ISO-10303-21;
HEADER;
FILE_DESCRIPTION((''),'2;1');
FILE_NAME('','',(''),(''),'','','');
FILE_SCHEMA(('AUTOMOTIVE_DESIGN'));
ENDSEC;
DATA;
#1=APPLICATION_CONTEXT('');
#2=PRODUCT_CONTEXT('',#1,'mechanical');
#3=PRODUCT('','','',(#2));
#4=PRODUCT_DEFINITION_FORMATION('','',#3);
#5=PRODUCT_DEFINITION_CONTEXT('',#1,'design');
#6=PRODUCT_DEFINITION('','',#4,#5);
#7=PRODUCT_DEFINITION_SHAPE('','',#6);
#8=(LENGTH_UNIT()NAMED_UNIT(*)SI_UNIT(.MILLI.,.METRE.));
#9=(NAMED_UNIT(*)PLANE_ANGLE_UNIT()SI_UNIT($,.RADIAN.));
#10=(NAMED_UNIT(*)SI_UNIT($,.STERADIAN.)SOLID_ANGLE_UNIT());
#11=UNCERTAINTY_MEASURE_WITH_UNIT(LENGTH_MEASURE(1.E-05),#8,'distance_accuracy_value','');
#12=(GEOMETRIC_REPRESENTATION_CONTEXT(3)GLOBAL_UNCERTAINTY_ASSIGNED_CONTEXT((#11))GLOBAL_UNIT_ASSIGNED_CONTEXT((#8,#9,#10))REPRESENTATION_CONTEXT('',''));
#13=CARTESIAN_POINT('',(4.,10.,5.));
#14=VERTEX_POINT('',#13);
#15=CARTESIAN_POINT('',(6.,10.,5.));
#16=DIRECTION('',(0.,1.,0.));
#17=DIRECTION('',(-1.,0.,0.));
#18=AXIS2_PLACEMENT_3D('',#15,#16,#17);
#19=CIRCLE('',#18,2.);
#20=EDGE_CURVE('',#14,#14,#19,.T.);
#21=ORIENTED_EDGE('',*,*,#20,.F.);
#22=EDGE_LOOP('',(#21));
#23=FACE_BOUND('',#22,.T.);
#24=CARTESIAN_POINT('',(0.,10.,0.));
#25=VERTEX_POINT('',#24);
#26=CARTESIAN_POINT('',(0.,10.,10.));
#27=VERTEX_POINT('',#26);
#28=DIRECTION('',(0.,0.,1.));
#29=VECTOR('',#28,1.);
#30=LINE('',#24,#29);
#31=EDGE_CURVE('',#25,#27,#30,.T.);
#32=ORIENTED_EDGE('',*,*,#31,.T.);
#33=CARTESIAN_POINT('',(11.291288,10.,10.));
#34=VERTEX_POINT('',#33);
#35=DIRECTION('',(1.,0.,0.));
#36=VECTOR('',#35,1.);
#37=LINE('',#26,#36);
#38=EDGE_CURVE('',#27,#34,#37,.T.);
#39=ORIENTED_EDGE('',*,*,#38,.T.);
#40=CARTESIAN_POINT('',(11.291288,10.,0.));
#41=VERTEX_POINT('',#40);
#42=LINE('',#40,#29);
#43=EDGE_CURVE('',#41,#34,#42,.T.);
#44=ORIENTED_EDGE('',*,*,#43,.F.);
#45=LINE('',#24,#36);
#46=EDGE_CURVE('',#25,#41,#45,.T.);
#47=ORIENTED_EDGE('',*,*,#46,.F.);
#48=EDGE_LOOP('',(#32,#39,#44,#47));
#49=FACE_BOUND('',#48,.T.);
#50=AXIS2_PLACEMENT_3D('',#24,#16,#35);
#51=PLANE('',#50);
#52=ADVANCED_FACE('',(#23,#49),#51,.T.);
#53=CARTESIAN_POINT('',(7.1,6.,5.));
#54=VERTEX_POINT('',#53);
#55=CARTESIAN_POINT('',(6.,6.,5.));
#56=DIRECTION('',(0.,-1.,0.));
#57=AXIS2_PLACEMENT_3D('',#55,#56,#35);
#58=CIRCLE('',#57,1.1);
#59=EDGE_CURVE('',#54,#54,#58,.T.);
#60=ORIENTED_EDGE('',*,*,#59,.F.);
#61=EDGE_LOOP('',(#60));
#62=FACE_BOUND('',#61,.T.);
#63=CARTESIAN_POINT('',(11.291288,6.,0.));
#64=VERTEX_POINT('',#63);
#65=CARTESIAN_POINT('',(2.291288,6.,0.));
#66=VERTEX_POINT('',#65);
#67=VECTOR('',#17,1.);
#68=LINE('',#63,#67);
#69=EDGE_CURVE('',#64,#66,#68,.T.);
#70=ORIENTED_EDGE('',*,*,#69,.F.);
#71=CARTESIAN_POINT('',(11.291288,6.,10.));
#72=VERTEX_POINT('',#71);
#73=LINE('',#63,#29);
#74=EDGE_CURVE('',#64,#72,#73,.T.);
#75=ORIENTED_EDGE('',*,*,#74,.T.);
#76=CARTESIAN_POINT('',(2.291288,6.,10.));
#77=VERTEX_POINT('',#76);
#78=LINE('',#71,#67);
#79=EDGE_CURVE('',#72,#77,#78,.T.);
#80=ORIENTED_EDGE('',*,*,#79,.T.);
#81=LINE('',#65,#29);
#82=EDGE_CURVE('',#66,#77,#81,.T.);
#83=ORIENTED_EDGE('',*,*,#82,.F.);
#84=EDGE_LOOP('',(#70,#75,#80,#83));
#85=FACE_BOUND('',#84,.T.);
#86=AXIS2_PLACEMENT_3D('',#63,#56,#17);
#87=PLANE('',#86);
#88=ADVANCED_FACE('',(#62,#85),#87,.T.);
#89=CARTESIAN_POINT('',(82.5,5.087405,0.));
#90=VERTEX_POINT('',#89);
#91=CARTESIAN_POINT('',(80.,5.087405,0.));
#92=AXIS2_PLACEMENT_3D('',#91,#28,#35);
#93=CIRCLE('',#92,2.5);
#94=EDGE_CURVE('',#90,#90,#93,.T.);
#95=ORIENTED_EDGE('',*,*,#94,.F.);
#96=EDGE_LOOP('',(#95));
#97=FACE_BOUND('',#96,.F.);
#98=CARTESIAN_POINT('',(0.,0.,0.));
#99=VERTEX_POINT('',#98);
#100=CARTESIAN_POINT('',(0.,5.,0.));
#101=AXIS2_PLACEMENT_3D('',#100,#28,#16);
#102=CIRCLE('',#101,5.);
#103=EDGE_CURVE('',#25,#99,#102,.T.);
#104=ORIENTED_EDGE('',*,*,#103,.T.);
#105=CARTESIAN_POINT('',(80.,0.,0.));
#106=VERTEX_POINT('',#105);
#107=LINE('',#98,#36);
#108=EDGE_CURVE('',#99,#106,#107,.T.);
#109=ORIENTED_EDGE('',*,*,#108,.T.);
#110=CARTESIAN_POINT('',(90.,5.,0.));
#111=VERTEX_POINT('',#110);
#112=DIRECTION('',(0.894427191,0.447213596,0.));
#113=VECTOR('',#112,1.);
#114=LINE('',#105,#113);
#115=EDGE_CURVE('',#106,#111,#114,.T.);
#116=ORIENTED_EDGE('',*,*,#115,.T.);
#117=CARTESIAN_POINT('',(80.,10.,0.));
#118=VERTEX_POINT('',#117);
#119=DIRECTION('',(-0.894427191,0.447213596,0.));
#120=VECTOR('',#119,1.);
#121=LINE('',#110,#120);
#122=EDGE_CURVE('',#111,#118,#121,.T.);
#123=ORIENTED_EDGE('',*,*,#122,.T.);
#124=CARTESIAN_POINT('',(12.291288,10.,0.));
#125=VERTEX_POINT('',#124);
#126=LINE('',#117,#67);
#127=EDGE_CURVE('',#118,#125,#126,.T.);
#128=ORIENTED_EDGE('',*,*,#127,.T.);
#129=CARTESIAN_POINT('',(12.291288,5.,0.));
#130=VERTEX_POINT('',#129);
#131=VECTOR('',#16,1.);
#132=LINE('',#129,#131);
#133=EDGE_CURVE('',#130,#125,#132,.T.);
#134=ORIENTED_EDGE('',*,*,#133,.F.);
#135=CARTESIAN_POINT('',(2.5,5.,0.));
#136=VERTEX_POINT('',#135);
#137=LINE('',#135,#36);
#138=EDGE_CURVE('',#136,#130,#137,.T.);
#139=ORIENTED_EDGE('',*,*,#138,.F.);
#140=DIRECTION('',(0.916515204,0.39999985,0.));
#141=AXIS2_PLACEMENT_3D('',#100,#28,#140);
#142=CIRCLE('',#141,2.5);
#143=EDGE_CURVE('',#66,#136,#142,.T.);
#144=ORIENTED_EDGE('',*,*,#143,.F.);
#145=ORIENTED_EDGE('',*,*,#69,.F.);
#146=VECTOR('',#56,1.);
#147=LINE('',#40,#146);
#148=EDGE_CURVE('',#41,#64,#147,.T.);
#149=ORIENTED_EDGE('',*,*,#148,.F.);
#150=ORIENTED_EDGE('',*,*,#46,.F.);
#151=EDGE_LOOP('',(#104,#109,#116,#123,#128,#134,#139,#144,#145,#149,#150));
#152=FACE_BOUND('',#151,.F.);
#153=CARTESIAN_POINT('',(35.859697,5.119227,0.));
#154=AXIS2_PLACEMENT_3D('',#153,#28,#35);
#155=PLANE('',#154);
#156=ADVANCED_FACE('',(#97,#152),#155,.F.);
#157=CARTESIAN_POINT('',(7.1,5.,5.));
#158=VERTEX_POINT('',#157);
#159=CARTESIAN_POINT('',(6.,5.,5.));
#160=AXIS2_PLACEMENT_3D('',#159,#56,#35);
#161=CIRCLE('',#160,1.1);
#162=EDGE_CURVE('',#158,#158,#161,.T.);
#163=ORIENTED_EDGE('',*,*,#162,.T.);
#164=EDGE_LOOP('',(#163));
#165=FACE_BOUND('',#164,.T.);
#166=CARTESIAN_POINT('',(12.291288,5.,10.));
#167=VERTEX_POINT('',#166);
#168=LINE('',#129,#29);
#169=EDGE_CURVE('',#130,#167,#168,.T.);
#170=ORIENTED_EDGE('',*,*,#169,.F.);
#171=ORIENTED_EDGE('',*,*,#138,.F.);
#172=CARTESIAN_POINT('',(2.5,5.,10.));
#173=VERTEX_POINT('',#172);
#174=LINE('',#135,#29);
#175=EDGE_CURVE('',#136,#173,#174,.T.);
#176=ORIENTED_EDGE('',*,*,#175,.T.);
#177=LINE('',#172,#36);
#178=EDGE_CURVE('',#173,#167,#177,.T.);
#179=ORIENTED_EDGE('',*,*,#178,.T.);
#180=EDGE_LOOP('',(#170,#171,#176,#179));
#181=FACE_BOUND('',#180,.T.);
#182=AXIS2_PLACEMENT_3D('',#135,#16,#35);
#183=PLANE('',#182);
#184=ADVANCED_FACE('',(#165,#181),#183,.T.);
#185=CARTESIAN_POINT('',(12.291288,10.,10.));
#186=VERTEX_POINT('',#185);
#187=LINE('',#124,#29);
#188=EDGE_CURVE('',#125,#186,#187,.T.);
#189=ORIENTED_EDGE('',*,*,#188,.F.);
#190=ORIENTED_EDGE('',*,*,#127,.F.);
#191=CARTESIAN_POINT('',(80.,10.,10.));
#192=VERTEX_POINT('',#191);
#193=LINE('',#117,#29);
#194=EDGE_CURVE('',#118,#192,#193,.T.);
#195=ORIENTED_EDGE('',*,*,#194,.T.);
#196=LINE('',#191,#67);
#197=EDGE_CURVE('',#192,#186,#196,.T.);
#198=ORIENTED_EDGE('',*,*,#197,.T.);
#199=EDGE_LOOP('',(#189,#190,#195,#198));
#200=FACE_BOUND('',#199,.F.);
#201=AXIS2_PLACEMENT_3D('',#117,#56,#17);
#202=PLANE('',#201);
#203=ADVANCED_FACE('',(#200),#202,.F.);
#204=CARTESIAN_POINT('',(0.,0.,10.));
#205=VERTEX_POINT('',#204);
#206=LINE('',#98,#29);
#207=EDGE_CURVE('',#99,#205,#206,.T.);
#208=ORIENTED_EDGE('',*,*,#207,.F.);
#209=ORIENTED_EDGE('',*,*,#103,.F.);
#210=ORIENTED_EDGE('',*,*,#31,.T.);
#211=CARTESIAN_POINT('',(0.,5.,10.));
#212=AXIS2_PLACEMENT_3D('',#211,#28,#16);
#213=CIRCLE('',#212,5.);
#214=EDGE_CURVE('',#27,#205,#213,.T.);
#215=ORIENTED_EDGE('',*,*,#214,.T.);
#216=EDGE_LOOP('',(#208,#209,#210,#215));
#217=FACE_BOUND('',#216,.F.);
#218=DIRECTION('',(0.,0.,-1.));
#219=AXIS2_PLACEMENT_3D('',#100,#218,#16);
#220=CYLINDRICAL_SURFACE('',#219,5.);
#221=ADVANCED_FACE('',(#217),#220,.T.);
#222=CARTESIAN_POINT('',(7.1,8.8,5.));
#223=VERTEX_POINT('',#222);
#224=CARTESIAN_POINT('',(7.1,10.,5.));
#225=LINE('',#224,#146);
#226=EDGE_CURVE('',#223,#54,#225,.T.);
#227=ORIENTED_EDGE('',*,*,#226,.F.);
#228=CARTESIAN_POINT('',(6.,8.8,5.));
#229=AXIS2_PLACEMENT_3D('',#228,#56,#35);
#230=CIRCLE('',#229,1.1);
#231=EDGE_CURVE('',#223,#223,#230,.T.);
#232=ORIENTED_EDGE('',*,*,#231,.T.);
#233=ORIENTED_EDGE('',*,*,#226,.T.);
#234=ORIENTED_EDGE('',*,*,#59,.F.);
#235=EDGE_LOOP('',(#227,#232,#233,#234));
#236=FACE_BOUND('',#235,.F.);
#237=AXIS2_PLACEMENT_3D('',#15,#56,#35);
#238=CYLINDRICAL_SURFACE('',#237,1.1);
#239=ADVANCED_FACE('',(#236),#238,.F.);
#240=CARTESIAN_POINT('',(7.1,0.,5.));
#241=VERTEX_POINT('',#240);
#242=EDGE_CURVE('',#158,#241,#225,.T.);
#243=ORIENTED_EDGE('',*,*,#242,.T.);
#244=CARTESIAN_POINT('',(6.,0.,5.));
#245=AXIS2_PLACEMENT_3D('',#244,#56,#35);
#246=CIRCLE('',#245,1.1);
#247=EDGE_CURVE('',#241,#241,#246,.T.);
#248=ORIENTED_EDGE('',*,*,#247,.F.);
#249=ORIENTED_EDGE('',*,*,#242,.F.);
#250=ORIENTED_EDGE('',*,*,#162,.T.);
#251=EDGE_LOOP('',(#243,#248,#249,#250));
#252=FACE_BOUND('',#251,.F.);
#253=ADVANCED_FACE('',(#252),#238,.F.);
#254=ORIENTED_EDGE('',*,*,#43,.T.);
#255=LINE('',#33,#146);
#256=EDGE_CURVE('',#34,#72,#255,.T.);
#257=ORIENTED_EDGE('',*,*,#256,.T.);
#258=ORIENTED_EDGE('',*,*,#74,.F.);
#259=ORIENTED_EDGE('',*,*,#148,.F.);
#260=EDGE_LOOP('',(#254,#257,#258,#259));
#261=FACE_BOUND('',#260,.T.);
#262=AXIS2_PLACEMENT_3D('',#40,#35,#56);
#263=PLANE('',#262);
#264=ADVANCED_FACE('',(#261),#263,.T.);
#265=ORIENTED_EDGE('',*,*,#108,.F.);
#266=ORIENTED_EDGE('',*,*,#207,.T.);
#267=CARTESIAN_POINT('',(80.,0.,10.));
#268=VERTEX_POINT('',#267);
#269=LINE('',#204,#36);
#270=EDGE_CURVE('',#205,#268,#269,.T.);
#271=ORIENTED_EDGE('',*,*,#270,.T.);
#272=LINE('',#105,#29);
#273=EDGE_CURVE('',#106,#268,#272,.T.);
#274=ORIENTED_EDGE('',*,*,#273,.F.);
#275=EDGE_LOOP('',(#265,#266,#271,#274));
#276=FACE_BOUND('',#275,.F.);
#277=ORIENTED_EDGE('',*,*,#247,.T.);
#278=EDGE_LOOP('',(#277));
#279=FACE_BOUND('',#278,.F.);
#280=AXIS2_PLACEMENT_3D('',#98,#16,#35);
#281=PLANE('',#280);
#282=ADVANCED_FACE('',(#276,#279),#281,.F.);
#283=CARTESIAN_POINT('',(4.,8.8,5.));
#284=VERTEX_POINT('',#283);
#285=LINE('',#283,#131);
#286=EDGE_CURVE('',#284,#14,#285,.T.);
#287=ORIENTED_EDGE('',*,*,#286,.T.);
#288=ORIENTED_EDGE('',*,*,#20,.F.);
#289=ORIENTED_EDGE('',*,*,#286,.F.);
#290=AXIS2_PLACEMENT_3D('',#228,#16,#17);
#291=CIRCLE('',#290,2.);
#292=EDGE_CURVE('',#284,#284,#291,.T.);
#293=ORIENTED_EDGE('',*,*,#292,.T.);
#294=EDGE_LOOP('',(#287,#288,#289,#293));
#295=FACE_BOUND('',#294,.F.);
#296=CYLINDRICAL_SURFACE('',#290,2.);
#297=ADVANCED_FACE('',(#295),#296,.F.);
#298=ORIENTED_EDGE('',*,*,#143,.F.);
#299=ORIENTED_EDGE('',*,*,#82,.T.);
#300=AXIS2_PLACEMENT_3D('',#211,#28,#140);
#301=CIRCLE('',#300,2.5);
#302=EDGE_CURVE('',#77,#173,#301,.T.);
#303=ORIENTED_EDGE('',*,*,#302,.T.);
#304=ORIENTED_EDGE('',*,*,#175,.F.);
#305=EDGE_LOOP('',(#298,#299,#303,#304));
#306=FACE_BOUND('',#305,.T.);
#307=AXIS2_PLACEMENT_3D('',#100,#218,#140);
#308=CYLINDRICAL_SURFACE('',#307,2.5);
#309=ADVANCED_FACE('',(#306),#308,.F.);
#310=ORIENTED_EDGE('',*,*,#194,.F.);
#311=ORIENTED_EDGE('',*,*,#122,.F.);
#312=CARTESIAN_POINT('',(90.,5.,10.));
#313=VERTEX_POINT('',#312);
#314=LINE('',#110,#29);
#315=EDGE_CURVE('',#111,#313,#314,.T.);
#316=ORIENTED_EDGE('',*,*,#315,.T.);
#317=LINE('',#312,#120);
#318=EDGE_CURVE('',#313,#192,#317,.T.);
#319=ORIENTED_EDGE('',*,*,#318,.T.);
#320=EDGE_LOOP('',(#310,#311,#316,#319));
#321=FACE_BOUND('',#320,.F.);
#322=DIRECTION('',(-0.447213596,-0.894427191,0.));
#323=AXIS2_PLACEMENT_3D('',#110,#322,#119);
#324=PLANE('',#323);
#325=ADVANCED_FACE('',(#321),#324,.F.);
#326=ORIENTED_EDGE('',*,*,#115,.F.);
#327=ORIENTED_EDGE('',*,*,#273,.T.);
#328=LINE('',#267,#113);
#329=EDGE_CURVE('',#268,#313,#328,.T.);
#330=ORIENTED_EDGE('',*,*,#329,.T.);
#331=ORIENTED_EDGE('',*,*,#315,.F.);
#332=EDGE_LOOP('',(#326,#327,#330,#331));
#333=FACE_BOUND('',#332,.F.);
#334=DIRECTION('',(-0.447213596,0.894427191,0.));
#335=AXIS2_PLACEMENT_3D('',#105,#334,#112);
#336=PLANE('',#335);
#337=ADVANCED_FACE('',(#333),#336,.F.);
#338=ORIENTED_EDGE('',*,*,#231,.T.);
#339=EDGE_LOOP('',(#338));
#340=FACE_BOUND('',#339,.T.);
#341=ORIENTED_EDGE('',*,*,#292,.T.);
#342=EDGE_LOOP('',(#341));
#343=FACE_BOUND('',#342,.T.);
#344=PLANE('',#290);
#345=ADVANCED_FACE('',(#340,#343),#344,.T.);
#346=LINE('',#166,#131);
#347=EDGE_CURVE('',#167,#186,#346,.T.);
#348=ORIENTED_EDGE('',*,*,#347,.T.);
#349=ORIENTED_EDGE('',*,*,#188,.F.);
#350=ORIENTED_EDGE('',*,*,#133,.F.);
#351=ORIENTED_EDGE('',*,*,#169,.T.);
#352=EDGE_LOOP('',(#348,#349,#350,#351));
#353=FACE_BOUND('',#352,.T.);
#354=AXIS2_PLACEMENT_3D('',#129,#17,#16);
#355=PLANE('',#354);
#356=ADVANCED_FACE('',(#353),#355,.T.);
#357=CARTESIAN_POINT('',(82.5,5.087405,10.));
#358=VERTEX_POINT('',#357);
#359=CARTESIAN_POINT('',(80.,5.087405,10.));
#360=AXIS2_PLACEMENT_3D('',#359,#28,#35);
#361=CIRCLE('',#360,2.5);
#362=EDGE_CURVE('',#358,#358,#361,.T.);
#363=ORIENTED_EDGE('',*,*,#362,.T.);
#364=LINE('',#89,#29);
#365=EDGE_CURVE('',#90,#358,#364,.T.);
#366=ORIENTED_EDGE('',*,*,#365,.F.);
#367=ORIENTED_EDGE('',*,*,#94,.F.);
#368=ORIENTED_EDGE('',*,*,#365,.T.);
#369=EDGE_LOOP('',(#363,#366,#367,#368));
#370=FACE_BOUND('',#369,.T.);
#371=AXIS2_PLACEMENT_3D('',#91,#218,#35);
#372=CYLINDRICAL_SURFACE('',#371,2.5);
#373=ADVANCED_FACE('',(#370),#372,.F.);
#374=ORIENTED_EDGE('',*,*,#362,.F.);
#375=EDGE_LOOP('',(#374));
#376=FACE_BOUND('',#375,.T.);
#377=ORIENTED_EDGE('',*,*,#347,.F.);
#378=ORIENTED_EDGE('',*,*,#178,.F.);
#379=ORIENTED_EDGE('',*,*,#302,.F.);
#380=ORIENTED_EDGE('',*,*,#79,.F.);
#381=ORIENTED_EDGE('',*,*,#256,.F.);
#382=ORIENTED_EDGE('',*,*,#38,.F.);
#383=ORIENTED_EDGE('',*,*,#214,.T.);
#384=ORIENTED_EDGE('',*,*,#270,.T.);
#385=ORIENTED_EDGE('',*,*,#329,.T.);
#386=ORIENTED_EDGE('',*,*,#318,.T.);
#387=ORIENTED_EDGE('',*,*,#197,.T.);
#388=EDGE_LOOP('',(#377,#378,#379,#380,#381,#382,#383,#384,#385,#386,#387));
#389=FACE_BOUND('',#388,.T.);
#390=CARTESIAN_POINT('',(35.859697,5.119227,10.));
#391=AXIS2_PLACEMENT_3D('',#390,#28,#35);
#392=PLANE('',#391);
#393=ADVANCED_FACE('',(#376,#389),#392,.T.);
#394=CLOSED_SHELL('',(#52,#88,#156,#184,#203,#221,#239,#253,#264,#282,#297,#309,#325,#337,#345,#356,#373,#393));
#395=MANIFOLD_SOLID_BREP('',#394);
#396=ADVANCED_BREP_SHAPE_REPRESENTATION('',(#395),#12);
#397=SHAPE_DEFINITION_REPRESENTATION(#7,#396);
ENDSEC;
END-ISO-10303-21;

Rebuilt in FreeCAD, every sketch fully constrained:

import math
import FreeCAD as App
import Part
import Sketcher
Q = App.Units.Quantity

doc = App.newDocument("Part")
body = doc.addObject("PartDesign::Body", "Body")

# Sketch on XY plane
sketch1 = body.newObject("Sketcher::SketchObject", "Sketch")
sketch1.AttachmentSupport = (doc.getObject("XY_Plane"), [""])
sketch1.MapMode = "FlatFace"
sketch1.addGeometry(Part.LineSegment(App.Vector(0, 0, 0), App.Vector(80, 0, 0)), False)
sketch1.addGeometry(Part.LineSegment(App.Vector(80, 0, 0), App.Vector(90, 5, 0)), False)
sketch1.addGeometry(Part.LineSegment(App.Vector(90, 5, 0), App.Vector(80, 10, 0)), False)
sketch1.addGeometry(Part.LineSegment(App.Vector(80, 10, 0), App.Vector(12.291288, 10, 0)), False)
sketch1.addGeometry(Part.LineSegment(App.Vector(12.291288, 10, 0), App.Vector(12.291288, 5, 0)), False)
sketch1.addGeometry(Part.LineSegment(App.Vector(12.291288, 5, 0), App.Vector(2.5, 5, 0)), False)
sketch1.addGeometry(Part.ArcOfCircle(Part.Circle(App.Vector(0, 5, 0), App.Vector(0, 0, 1), 2.5), math.radians(23.578169), math.radians(359.999993)), False)
sketch1.addGeometry(Part.LineSegment(App.Vector(2.291288, 6, 0), App.Vector(11.291288, 6, 0)), False)
sketch1.addGeometry(Part.LineSegment(App.Vector(11.291288, 6, 0), App.Vector(11.291288, 10, 0)), False)
sketch1.addGeometry(Part.LineSegment(App.Vector(11.291288, 10, 0), App.Vector(0, 10, 0)), False)
sketch1.addGeometry(Part.ArcOfCircle(Part.Circle(App.Vector(0, 5, 0), App.Vector(0, 0, 1), 5), math.radians(90), math.radians(270)), False)
sketch1.addGeometry(Part.Circle(App.Vector(80, 5.087405, 0), App.Vector(0, 0, 1), 2.5), False)
sketch1.addConstraint(Sketcher.Constraint("Coincident", 0, 2, 1, 1))
sketch1.addConstraint(Sketcher.Constraint("Coincident", 1, 2, 2, 1))
sketch1.addConstraint(Sketcher.Constraint("Coincident", 2, 2, 3, 1))
sketch1.addConstraint(Sketcher.Constraint("Coincident", 3, 2, 4, 1))
sketch1.addConstraint(Sketcher.Constraint("Coincident", 4, 2, 5, 1))
sketch1.addConstraint(Sketcher.Constraint("Coincident", 5, 2, 6, 2))
sketch1.addConstraint(Sketcher.Constraint("Coincident", 6, 1, 7, 1))
sketch1.addConstraint(Sketcher.Constraint("Coincident", 7, 2, 8, 1))
sketch1.addConstraint(Sketcher.Constraint("Coincident", 8, 2, 9, 1))
sketch1.addConstraint(Sketcher.Constraint("Tangent", 9, 2, 10, 1))
sketch1.addConstraint(Sketcher.Constraint("Tangent", 10, 2, 0, 1))
sketch1.addConstraint(Sketcher.Constraint("Horizontal", 0))
sketch1.addConstraint(Sketcher.Constraint("Horizontal", 3))
sketch1.addConstraint(Sketcher.Constraint("Vertical", 4))
sketch1.addConstraint(Sketcher.Constraint("Horizontal", 5))
sketch1.addConstraint(Sketcher.Constraint("Horizontal", 7))
sketch1.addConstraint(Sketcher.Constraint("Vertical", 8))
sketch1.addConstraint(Sketcher.Constraint("Horizontal", 9))
sketch1.addConstraint(Sketcher.Constraint("Coincident", 10, 2, -1, 1))
sketch1.addConstraint(Sketcher.Constraint("Coincident", 10, 3, 6, 3))
sketch1.addConstraint(Sketcher.Constraint("Equal", 6, 11))
sketch1.addConstraint(Sketcher.Constraint("Horizontal", 10, 3, 1, 2))
sketch1.addConstraint(Sketcher.Constraint("Horizontal", 1, 2, 4, 2))
sketch1.addConstraint(Sketcher.Constraint("Horizontal", 3, 2, 8, 2))
sketch1.addConstraint(Sketcher.Constraint("Vertical", 11, 3, 0, 2))
sketch1.addConstraint(Sketcher.Constraint("Vertical", 0, 2, 2, 2))
sketch1.addConstraint(Sketcher.Constraint("Diameter", 11, Q("5 mm")))
sketch1.addConstraint(Sketcher.Constraint("Radius", 10, Q("5 mm")))
sketch1.addConstraint(Sketcher.Constraint("DistanceX", 0, 1, 0, 2, Q("80 mm")))
sketch1.addConstraint(Sketcher.Constraint("DistanceX", 7, 1, 7, 2, Q("9 mm")))
sketch1.addConstraint(Sketcher.Constraint("DistanceY", 8, 1, 8, 2, Q("4 mm")))
sketch1.addConstraint(Sketcher.Constraint("DistanceX", -1, 1, 1, 2, Q("90 mm")))
sketch1.addConstraint(Sketcher.Constraint("DistanceX", 6, 1, 4, 2, Q("10 mm")))
sketch1.addConstraint(Sketcher.Constraint("DistanceY", -1, 1, 11, 3, Q("5.087405 mm")))
pad1 = body.newObject("PartDesign::Pad", "Pad")
pad1.Profile = sketch1
pad1.Length = 10

# Sketch on XZ plane
sketch2 = body.newObject("Sketcher::SketchObject", "Sketch001")
sketch2.AttachmentSupport = (doc.getObject("XZ_Plane"), [""])
sketch2.MapMode = "FlatFace"
sketch2.AttachmentOffset = App.Placement(App.Vector(0, 0, -10), App.Rotation())
sketch2.addGeometry(Part.Circle(App.Vector(6, 5, 0), App.Vector(0, 0, 1), 1.1), False)
sketch2.addConstraint(Sketcher.Constraint("Diameter", 0, Q("2.2 mm")))
sketch2.addConstraint(Sketcher.Constraint("DistanceX", -1, 1, 0, 3, Q("6 mm")))
sketch2.addConstraint(Sketcher.Constraint("DistanceY", -1, 1, 0, 3, Q("5 mm")))
doc.recompute()
hole = body.newObject("PartDesign::Hole", "Hole")
hole.Profile = sketch2
hole.ThreadType = "None"
hole.Diameter = 2.2
hole.DepthType = "Dimension"
hole.Depth = 25
hole.DrillPoint = "Flat"
hole.HoleCutType = "Counterbore"
hole.HoleCutDiameter = 4
hole.HoleCutDepth = 1.2
hole.Reversed = True

doc.recompute()
